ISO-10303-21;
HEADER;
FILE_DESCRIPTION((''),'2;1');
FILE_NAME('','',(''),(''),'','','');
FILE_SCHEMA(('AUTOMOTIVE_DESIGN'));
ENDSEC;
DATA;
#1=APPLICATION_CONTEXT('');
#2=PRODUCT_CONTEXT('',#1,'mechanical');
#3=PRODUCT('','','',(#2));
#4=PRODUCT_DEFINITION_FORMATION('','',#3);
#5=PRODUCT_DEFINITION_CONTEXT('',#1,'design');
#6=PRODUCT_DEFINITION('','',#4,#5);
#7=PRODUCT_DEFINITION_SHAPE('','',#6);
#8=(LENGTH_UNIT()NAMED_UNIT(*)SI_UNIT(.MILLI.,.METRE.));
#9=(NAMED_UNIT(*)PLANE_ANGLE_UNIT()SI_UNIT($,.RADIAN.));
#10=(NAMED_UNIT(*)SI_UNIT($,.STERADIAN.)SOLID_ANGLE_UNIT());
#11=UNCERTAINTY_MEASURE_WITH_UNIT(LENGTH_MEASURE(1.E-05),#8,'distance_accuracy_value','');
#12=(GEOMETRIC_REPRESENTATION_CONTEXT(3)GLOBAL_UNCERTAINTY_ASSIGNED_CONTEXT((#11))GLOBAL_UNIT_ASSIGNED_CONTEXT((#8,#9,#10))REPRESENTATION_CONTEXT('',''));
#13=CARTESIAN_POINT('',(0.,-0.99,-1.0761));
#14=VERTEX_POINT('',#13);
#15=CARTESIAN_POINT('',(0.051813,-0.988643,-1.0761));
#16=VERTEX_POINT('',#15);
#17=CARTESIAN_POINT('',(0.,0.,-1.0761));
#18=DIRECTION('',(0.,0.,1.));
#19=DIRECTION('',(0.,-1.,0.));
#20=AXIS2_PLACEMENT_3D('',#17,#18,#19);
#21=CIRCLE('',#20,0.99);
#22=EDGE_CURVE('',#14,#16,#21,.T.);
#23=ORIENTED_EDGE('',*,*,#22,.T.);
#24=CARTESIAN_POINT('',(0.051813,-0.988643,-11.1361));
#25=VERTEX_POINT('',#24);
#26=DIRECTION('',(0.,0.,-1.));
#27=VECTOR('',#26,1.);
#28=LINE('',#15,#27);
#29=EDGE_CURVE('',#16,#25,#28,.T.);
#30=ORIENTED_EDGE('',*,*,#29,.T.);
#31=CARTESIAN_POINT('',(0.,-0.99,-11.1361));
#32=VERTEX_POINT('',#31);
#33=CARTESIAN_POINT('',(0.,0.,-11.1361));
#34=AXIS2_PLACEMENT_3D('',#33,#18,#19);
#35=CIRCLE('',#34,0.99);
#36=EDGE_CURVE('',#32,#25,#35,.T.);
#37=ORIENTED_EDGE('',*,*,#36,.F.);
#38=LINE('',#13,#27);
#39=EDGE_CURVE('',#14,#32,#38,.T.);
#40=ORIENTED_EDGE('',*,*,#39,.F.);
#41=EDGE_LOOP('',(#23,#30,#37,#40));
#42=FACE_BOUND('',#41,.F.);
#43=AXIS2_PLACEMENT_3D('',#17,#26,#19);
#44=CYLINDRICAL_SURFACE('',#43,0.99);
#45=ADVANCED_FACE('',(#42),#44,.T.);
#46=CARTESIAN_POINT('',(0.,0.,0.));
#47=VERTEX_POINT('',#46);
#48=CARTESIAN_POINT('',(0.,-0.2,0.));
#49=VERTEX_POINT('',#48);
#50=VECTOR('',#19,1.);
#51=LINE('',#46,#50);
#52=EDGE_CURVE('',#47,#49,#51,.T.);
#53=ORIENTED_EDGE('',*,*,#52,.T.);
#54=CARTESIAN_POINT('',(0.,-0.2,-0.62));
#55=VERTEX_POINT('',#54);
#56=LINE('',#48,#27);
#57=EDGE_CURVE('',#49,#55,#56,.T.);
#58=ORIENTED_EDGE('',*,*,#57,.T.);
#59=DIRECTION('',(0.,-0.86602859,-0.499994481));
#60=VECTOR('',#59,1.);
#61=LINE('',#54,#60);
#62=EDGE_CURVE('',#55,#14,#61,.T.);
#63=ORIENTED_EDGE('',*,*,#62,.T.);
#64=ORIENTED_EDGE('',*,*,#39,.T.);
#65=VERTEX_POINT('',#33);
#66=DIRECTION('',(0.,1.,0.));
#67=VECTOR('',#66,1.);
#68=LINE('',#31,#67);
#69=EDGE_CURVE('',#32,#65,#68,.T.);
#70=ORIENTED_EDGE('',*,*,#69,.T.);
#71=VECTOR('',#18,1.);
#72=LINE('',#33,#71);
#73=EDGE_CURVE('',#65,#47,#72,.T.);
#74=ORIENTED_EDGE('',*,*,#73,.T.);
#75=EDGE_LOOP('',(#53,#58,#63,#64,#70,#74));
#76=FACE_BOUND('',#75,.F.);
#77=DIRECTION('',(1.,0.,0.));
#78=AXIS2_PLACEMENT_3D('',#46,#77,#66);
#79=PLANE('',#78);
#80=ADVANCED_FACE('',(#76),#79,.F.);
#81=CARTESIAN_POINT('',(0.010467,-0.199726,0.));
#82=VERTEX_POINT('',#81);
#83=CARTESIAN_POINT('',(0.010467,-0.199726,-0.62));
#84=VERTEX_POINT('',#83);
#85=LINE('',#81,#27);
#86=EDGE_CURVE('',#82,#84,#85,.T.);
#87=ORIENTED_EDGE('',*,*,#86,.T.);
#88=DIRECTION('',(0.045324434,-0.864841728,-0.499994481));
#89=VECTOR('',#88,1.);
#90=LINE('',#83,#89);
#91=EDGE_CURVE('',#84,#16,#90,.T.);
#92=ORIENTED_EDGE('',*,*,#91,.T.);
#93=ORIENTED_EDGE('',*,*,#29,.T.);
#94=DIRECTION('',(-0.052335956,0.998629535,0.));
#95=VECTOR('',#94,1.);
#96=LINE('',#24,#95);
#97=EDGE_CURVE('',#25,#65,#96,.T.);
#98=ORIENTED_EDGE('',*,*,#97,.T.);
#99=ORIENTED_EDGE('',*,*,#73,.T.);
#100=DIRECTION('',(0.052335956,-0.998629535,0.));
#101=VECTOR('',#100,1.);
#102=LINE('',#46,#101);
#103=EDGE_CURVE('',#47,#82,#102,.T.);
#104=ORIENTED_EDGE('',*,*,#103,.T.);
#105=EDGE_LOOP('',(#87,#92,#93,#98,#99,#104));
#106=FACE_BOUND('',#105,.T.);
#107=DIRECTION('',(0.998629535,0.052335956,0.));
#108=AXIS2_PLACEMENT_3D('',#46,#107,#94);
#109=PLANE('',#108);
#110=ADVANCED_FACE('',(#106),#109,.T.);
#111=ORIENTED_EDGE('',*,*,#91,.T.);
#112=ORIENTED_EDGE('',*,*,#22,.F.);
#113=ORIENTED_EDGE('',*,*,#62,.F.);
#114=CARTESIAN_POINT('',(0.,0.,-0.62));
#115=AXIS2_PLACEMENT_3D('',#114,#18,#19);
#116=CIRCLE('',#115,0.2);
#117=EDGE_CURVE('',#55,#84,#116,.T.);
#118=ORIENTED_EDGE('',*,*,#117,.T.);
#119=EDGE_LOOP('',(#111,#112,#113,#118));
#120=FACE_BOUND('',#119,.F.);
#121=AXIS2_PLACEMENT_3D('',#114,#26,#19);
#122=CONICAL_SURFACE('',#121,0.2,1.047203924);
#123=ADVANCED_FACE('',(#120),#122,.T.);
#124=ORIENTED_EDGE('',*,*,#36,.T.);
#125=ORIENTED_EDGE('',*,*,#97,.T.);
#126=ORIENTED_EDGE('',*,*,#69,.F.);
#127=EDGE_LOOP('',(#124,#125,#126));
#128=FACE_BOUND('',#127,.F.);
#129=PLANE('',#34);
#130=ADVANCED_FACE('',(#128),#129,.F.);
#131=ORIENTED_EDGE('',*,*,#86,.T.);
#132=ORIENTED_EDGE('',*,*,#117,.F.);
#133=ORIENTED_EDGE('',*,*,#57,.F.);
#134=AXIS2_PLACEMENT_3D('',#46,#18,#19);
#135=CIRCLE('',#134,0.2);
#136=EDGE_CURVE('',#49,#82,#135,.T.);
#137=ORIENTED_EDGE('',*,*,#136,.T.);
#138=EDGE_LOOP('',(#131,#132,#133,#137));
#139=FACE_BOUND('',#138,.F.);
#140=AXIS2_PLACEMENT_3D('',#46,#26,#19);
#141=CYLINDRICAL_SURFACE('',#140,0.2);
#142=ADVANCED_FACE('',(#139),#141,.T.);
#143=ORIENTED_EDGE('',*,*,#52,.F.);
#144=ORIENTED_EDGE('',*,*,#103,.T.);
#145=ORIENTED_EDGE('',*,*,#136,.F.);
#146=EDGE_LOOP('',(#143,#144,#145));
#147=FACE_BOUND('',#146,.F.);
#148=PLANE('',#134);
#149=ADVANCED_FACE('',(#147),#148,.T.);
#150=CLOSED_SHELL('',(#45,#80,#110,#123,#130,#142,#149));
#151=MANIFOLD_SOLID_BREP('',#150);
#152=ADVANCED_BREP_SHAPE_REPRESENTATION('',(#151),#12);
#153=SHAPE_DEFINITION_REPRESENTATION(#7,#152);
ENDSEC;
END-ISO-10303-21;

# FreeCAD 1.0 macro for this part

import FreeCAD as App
import Part
import Sketcher
from FreeCAD import Vector
Q = App.Units.Quantity

doc = App.newDocument("Part")
body = doc.addObject("PartDesign::Body", "Body")

sketch1 = doc.addObject("Sketcher::SketchObject", "Sketch")
body.addObject(sketch1)
sketch1.AttachmentSupport = (doc.YZ_Plane, [""])
sketch1.MapMode = "FlatFace"
sketch1.addGeometry([
    Part.LineSegment(Vector(0, 0, 0), Vector(-0.2, 0, 0)),
    Part.LineSegment(Vector(-0.2, 0, 0), Vector(-0.2, -0.62, 0)),
    Part.LineSegment(Vector(-0.2, -0.62, 0), Vector(-0.99, -1.08, 0)),
    Part.LineSegment(Vector(-0.99, -1.08, 0), Vector(-0.99, -11.14, 0)),
    Part.LineSegment(Vector(-0.99, -11.14, 0), Vector(0, -11.14, 0)),
    Part.LineSegment(Vector(0, -11.14, 0), Vector(0, 0, 0)),
], False)
sketch1.addConstraint([
    Sketcher.Constraint("Coincident", 0, 2, 1, 1),
    Sketcher.Constraint("Coincident", 1, 2, 2, 1),
    Sketcher.Constraint("Coincident", 2, 2, 3, 1),
    Sketcher.Constraint("Coincident", 3, 2, 4, 1),
    Sketcher.Constraint("Coincident", 4, 2, 5, 1),
    Sketcher.Constraint("Coincident", 5, 2, 0, 1),
    Sketcher.Constraint("Horizontal", 0),
    Sketcher.Constraint("Vertical", 1),
    Sketcher.Constraint("Vertical", 3),
    Sketcher.Constraint("Horizontal", 4),
    Sketcher.Constraint("Vertical", 5),
    Sketcher.Constraint("Coincident", 5, 2, -1, 1),
    Sketcher.Constraint("DistanceX", 0, 2, 0, 1, 0.2),
    Sketcher.Constraint("DistanceX", 4, 1, 4, 2, 0.99),
    Sketcher.Constraint("DistanceY", 1, 2, 1, 1, 0.62),
    Sketcher.Constraint("DistanceY", 3, 2, 3, 1, 10.06),
    Sketcher.Constraint("Angle", 2, Q("-150.0004 deg")),
])
revolution = doc.addObject("PartDesign::Revolution", "Revolution")
body.addObject(revolution)
revolution.Profile = sketch1
revolution.ReferenceAxis = (sketch1, ["V_Axis"])
revolution.Angle = 3

doc.recompute()
